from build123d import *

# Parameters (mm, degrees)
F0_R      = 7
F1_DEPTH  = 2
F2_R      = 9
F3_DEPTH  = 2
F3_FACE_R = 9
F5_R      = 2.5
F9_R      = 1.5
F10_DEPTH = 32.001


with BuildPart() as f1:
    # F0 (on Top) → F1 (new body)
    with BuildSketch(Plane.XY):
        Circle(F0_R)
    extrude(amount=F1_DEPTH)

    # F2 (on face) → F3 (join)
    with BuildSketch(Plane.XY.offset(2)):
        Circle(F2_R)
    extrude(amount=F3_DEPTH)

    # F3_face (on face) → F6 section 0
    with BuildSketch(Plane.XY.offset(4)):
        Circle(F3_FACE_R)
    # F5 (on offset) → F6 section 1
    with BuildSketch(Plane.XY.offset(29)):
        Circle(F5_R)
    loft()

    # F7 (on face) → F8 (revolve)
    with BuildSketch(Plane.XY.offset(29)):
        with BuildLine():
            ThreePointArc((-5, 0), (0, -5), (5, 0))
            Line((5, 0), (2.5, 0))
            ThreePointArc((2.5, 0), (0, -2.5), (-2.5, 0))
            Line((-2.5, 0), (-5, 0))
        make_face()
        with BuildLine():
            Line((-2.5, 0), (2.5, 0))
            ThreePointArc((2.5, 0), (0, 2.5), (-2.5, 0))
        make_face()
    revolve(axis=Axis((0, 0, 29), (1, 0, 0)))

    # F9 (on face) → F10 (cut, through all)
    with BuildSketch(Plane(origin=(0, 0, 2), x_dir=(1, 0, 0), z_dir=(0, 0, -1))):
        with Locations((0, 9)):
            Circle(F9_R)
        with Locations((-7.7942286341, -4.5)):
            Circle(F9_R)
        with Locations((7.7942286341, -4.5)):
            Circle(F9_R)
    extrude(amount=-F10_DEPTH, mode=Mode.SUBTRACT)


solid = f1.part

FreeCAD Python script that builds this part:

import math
import FreeCAD as App
import Part
import Sketcher
Q = App.Units.Quantity

doc = App.newDocument("Part")
body = doc.addObject("PartDesign::Body", "Body")

# Sketch on XY plane
sketch1 = doc.addObject("Sketcher::SketchObject", "Sketch")
body.addObject(sketch1)
sketch1.AttachmentSupport = (doc.XY_Plane, [""])
sketch1.MapMode = "FlatFace"
sketch1.addGeometry(Part.Circle(App.Vector(0, 0, 0), App.Vector(0, 0, 1), 7), False)
sketch1.addConstraint([
    Sketcher.Constraint("Coincident", 0, 3, -1, 1),
    Sketcher.Constraint("Diameter", 0, Q("14 mm")),
])
pad1 = doc.addObject("PartDesign::Pad", "Pad")
body.addObject(pad1)
pad1.Profile = sketch1
pad1.Length = 2

# Sketch on XY plane
sketch2 = doc.addObject("Sketcher::SketchObject", "Sketch001")
body.addObject(sketch2)
sketch2.AttachmentSupport = (doc.XY_Plane, [""])
sketch2.MapMode = "FlatFace"
sketch2.AttachmentOffset = App.Placement(App.Vector(0, 0, 2), App.Rotation())
sketch2.addGeometry(Part.Circle(App.Vector(0, 0, 0), App.Vector(0, 0, 1), 9), False)
sketch2.addConstraint([
    Sketcher.Constraint("Coincident", 0, 3, -1, 1),
    Sketcher.Constraint("Diameter", 0, Q("18 mm")),
])
pad2 = doc.addObject("PartDesign::Pad", "Pad001")
body.addObject(pad2)
pad2.Profile = sketch2
pad2.Length = 2

# Sketch on XY plane
sketch3 = doc.addObject("Sketcher::SketchObject", "Sketch002")
body.addObject(sketch3)
sketch3.AttachmentSupport = (doc.XY_Plane, [""])
sketch3.MapMode = "FlatFace"
sketch3.AttachmentOffset = App.Placement(App.Vector(0, 0, 4), App.Rotation())
sketch3.addGeometry(Part.Circle(App.Vector(0, 0, 0), App.Vector(0, 0, 1), 9), False)
sketch3.addConstraint([
    Sketcher.Constraint("Coincident", 0, 3, -1, 1),
    Sketcher.Constraint("Diameter", 0, Q("18 mm")),
])

# Sketch on XY plane
sketch4 = doc.addObject("Sketcher::SketchObject", "Sketch003")
body.addObject(sketch4)
sketch4.AttachmentSupport = (doc.XY_Plane, [""])
sketch4.MapMode = "FlatFace"
sketch4.AttachmentOffset = App.Placement(App.Vector(0, 0, 29), App.Rotation())
sketch4.addGeometry(Part.Circle(App.Vector(0, 0, 0), App.Vector(0, 0, 1), 2.5), False)
sketch4.addConstraint([
    Sketcher.Constraint("Coincident", 0, 3, -1, 1),
    Sketcher.Constraint("Diameter", 0, Q("5 mm")),
])

additiveloft = doc.addObject("PartDesign::AdditiveLoft", "AdditiveLoft")
body.addObject(additiveloft)
additiveloft.Profile = sketch3
additiveloft.Sections = [sketch4]

# Sketch on XY plane
sketch5 = doc.addObject("Sketcher::SketchObject", "Sketch004")
body.addObject(sketch5)
sketch5.AttachmentSupport = (doc.XY_Plane, [""])
sketch5.MapMode = "FlatFace"
sketch5.AttachmentOffset = App.Placement(App.Vector(0, 0, 29), App.Rotation())
sketch5.addGeometry([
    Part.ArcOfCircle(Part.Circle(App.Vector(0, 0, 0), App.Vector(0, 0, 1), 5), math.radians(180), math.radians(360)),  # 0
    Part.LineSegment(App.Vector(5, 0, 0), App.Vector(2.5, 0, 0)),  # 1
    Part.ArcOfCircle(Part.Circle(App.Vector(0, 0, 0), App.Vector(0, 0, 1), 2.5), math.radians(180), math.radians(360)),  # 2
    Part.LineSegment(App.Vector(-2.5, 0, 0), App.Vector(-5, 0, 0)),  # 3
    Part.LineSegment(App.Vector(-2.5, 0, 0), App.Vector(2.5, 0, 0)),  # 4
    Part.ArcOfCircle(Part.Circle(App.Vector(0, 0, 0), App.Vector(0, 0, 1), 2.5), math.radians(0), math.radians(180)),  # 5
], False)
sketch5.addConstraint([
    Sketcher.Constraint("Coincident", 0, 2, 1, 1),
    Sketcher.Constraint("Coincident", 1, 2, 2, 2),
    Sketcher.Constraint("Coincident", 2, 1, 3, 1),
    Sketcher.Constraint("Coincident", 3, 2, 0, 1),
    Sketcher.Constraint("Coincident", 4, 1, 5, 2),
    Sketcher.Constraint("Coincident", 5, 1, 4, 2),
    Sketcher.Constraint("Horizontal", 1),
    Sketcher.Constraint("Horizontal", 3),
    Sketcher.Constraint("Horizontal", 4),
    Sketcher.Constraint("Coincident", 0, 3, -1, 1),
    Sketcher.Constraint("Coincident", 2, 3, -1, 1),
    Sketcher.Constraint("Coincident", 5, 3, -1, 1),
    Sketcher.Constraint("Coincident", 4, 1, 2, 1),
    Sketcher.Constraint("PointOnObject", 0, 2, -1),
    Sketcher.Constraint("PointOnObject", 2, 1, -1),
    Sketcher.Constraint("Radius", 0, Q("5 mm")),
    Sketcher.Constraint("Radius", 2, Q("2.5 mm")),
])
revolution = doc.addObject("PartDesign::Revolution", "Revolution")
body.addObject(revolution)
revolution.Profile = sketch5
revolution.ReferenceAxis = (sketch5, ["H_Axis"])
revolution.Angle = 360

# Sketch on XY plane
sketch6 = doc.addObject("Sketcher::SketchObject", "Sketch005")
body.addObject(sketch6)
sketch6.AttachmentSupport = (doc.XY_Plane, [""])
sketch6.MapMode = "FlatFace"
sketch6.AttachmentOffset = App.Placement(App.Vector(0, 0, 2), App.Rotation())
sketch6.addGeometry([
    Part.Circle(App.Vector(0, -9, 0), App.Vector(0, 0, 1), 1.5),
    Part.Circle(App.Vector(-7.8, 4.5, 0), App.Vector(0, 0, 1), 1.5),
    Part.Circle(App.Vector(7.8, 4.5, 0), App.Vector(0, 0, 1), 1.5),
], False)
sketch6.addConstraint([
    Sketcher.Constraint("Equal", 0, 1),
    Sketcher.Constraint("Equal", 1, 2),
    Sketcher.Constraint("Symmetric", 1, 3, 2, 3, -2),
    Sketcher.Constraint("PointOnObject", 0, 3, -2),
    Sketcher.Constraint("Diameter", 0, Q("3 mm")),
    Sketcher.Constraint("DistanceY", 0, 3, -1, 1, Q("9 mm")),
    Sketcher.Constraint("DistanceY", -1, 1, 1, 3, Q("4.5 mm")),
    Sketcher.Constraint("DistanceX", 1, 3, -1, 1, Q("7.794229 mm")),
])
pocket1 = doc.addObject("PartDesign::Pocket", "Pocket")
body.addObject(pocket1)
pocket1.Profile = sketch6
pocket1.Type = "ThroughAll"
pocket1.Reversed = True

doc.recompute()
